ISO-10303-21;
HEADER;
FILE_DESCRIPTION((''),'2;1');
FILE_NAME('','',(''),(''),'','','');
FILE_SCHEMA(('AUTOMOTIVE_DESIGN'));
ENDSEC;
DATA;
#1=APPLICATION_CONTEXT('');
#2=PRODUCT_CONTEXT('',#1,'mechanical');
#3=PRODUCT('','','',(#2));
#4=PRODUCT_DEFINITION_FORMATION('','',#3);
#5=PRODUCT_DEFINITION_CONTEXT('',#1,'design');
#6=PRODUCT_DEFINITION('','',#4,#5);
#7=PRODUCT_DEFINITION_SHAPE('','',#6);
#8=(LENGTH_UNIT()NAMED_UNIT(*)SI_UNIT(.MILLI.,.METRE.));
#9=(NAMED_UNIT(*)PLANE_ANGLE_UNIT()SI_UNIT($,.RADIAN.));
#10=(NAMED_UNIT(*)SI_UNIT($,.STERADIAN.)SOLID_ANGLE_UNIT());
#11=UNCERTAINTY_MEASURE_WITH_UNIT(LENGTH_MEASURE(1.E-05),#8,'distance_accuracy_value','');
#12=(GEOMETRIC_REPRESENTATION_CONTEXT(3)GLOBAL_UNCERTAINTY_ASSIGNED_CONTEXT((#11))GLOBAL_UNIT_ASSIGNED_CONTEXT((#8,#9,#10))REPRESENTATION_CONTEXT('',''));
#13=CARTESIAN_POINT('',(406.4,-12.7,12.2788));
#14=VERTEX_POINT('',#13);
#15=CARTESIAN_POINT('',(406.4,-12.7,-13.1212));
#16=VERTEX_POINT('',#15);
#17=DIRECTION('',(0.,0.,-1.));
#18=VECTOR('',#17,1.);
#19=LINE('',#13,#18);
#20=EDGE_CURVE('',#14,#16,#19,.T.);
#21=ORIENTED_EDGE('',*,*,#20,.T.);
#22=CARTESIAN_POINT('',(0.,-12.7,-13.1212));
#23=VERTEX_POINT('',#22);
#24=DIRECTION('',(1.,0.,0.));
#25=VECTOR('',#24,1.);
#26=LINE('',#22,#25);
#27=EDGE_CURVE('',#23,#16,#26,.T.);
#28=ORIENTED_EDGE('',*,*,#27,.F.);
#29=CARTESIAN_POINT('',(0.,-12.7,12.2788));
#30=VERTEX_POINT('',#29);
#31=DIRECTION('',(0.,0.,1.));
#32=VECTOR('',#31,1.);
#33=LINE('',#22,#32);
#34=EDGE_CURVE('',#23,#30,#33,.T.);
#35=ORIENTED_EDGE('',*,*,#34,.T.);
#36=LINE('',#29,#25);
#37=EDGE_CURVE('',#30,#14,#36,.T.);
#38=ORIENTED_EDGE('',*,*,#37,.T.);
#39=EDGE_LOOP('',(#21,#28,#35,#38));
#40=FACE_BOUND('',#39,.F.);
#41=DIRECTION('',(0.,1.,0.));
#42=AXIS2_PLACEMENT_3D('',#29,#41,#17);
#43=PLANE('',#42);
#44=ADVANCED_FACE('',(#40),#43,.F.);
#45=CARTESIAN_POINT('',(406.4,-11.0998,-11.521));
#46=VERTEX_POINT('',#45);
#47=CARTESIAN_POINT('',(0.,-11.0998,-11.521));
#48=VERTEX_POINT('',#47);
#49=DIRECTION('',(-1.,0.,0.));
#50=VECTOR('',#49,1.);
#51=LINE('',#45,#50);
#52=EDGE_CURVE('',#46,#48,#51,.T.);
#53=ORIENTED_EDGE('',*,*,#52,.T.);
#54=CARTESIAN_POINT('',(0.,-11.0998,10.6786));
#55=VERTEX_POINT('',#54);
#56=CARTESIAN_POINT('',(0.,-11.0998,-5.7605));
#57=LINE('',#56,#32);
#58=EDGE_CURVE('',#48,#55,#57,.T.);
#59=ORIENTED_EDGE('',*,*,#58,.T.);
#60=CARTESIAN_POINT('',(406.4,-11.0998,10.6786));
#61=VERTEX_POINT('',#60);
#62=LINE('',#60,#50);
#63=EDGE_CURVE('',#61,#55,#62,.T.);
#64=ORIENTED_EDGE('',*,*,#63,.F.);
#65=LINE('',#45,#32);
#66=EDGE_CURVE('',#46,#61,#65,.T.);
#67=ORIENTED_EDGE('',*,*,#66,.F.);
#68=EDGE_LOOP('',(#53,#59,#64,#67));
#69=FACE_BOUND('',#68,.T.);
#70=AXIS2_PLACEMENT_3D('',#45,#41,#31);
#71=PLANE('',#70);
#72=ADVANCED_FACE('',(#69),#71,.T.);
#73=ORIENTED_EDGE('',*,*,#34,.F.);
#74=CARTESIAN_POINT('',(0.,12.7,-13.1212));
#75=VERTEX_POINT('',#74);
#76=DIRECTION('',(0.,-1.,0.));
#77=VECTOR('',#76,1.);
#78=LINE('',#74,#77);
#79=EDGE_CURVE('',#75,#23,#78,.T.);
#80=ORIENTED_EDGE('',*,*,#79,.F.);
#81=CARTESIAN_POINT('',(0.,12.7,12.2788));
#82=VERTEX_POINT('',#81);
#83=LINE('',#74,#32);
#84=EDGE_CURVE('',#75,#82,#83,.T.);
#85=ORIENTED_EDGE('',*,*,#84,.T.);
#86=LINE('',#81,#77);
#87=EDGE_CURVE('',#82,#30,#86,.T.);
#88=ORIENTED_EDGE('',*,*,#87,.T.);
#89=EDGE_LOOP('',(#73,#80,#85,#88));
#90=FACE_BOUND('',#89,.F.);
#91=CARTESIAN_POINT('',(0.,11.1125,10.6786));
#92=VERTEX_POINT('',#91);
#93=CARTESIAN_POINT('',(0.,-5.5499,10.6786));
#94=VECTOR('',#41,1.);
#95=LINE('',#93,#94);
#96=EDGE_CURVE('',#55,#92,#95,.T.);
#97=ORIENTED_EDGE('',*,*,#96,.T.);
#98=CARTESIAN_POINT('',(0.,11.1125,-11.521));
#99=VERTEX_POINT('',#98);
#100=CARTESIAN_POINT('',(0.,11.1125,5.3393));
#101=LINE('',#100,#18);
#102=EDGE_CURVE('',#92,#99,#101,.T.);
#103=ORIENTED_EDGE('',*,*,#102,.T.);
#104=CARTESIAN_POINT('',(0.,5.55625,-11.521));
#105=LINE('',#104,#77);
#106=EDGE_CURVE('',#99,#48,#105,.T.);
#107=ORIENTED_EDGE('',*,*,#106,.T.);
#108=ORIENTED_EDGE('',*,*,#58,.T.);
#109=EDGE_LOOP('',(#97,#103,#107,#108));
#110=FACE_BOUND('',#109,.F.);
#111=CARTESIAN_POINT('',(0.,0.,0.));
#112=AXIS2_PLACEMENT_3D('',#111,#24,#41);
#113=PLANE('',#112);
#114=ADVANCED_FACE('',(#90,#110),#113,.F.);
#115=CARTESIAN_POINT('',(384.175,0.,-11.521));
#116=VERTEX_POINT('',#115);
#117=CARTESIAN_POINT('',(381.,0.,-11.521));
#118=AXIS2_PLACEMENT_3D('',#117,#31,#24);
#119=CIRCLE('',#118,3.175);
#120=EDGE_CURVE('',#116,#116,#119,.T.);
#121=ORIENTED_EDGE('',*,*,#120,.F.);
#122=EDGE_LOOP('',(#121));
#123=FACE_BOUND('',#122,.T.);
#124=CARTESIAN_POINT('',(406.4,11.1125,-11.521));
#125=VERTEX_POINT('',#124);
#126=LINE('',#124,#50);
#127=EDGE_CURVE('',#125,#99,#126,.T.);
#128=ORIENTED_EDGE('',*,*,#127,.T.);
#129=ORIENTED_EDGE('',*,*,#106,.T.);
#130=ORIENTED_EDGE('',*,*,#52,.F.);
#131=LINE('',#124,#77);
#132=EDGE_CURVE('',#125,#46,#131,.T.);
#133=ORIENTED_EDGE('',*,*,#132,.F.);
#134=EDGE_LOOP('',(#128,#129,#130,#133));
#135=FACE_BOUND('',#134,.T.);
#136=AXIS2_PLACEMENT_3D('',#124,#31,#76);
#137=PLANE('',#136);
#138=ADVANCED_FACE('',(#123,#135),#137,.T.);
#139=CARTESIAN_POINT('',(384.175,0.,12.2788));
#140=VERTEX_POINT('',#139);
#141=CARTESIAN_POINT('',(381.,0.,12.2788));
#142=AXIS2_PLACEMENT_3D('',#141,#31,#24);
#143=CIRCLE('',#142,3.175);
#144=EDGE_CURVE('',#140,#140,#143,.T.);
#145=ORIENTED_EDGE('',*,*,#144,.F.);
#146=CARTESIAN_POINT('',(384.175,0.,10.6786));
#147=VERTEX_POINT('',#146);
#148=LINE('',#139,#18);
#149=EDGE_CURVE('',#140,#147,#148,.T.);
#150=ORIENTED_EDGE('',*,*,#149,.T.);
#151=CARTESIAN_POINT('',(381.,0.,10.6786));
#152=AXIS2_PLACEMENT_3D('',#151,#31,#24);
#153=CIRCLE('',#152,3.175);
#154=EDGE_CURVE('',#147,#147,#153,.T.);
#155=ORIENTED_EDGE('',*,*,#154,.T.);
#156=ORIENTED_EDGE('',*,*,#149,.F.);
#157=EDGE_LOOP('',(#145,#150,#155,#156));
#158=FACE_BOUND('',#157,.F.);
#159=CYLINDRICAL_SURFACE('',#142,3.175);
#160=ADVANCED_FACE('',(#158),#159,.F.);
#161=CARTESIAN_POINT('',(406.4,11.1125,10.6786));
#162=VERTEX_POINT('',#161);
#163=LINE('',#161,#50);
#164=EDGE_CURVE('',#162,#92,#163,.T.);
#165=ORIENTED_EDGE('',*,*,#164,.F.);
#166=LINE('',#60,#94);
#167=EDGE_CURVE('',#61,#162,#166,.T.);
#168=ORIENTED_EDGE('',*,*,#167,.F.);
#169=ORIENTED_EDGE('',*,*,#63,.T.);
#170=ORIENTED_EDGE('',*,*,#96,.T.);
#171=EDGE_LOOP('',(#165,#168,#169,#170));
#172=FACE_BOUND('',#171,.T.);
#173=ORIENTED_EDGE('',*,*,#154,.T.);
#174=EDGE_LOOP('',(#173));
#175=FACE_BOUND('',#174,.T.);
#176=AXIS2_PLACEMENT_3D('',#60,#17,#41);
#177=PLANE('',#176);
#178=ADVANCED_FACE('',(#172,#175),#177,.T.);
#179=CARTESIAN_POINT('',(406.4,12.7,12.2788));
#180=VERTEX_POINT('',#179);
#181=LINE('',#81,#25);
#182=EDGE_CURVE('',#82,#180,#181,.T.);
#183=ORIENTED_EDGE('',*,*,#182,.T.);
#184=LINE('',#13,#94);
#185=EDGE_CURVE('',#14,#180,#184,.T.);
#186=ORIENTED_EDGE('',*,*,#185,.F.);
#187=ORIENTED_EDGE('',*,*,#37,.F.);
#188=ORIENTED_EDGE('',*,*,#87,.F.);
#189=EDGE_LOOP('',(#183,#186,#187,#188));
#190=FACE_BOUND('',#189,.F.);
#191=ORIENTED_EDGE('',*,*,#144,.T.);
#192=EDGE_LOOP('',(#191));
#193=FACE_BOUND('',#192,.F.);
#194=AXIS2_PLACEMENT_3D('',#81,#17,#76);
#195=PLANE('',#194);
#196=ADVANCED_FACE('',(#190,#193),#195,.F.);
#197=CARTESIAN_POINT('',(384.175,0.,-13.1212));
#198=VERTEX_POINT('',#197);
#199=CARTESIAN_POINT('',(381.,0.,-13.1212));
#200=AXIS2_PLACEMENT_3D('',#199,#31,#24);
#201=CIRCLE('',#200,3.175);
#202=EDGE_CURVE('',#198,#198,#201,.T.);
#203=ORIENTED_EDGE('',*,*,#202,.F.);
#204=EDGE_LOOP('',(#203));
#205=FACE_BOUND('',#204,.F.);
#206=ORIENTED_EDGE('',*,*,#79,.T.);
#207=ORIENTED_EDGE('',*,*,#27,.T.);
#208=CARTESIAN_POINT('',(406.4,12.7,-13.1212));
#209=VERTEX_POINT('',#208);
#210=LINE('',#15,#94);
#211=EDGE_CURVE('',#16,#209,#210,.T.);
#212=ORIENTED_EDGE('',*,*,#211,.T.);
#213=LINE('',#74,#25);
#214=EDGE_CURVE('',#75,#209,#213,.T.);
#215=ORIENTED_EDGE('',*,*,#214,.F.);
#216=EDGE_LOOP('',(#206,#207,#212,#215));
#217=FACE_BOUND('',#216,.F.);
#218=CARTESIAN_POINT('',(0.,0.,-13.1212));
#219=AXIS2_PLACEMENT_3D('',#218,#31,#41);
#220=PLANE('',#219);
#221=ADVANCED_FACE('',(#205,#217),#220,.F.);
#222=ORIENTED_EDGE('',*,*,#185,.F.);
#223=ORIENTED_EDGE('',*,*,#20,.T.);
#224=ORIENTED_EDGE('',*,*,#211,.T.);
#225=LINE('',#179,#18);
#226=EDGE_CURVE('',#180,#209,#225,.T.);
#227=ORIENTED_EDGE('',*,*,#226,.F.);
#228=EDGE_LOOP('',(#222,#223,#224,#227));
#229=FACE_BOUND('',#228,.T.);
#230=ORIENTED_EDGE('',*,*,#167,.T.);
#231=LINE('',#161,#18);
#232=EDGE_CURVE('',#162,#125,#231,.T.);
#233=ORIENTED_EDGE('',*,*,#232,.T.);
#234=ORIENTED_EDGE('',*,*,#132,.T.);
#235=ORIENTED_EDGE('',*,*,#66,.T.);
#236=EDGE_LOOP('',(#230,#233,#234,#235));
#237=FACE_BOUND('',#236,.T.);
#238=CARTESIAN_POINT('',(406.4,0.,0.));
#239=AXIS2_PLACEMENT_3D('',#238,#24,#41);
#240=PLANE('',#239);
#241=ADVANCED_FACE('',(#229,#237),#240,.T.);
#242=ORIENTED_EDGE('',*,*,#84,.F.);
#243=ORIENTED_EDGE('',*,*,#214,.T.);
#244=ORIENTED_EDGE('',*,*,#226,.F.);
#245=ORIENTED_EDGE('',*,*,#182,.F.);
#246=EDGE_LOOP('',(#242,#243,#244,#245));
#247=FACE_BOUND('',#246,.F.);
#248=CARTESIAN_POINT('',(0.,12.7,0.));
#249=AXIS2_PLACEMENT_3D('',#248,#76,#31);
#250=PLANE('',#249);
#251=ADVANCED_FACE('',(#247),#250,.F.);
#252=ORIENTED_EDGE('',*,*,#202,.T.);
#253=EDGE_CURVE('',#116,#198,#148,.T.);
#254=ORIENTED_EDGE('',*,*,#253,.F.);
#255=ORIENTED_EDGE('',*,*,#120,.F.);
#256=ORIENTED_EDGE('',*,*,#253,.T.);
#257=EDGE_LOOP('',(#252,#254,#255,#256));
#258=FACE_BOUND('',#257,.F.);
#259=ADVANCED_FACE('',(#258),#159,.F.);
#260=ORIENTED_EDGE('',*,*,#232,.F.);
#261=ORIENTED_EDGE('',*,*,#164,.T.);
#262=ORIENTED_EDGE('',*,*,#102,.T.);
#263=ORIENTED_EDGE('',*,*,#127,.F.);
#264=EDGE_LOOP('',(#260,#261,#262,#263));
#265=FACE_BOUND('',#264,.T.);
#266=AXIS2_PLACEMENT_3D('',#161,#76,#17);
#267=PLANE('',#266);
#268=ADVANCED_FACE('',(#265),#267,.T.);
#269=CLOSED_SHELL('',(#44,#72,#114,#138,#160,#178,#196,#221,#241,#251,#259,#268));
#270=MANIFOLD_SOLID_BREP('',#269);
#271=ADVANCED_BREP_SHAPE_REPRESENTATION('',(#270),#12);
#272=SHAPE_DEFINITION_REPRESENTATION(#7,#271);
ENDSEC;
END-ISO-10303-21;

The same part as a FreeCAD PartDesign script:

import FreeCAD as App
import Part
import Sketcher
Q = App.Units.Quantity

doc = App.newDocument("Part")
body = doc.addObject("PartDesign::Body", "Body")

# Sketch on YZ plane
sketch1 = body.newObject("Sketcher::SketchObject", "Sketch")
sketch1.AttachmentSupport = (doc.getObject("YZ_Plane"), [""])
sketch1.MapMode = "FlatFace"
sketch1.addGeometry([
    Part.LineSegment(App.Vector(13, 12, 0), App.Vector(-13, 12, 0)),
    Part.LineSegment(App.Vector(-13, 12, 0), App.Vector(-13, -13, 0)),
    Part.LineSegment(App.Vector(-13, -13, 0), App.Vector(13, -13, 0)),
    Part.LineSegment(App.Vector(13, -13, 0), App.Vector(13, 12, 0)),
], False)
sketch1.addConstraint([
    Sketcher.Constraint("Coincident", 0, 2, 1, 1),
    Sketcher.Constraint("Coincident", 1, 2, 2, 1),
    Sketcher.Constraint("Coincident", 2, 2, 3, 1),
    Sketcher.Constraint("Coincident", 3, 2, 0, 1),
    Sketcher.Constraint("Horizontal", 0),
    Sketcher.Constraint("Vertical", 1),
    Sketcher.Constraint("Horizontal", 2),
    Sketcher.Constraint("Vertical", 3),
    Sketcher.Constraint("Equal", 2, 1),
    Sketcher.Constraint("DistanceX", 0, 2, 0, 1, Q("1 in")),
    Sketcher.Constraint("DistanceX", 0, 2, -1, 1, Q("0.5 in")),
    Sketcher.Constraint("DistanceY", -1, 1, 0, 2, Q("12.2788 mm")),
])
pad1 = body.newObject("PartDesign::Pad", "Pad")
pad1.Profile = sketch1
pad1.Length = Q("16 in")

# Sketch on YZ plane
sketch2 = body.newObject("Sketcher::SketchObject", "Sketch001")
sketch2.AttachmentSupport = (doc.getObject("YZ_Plane"), [""])
sketch2.MapMode = "FlatFace"
sketch2.AttachmentOffset = App.Placement(App.Vector(0, 0, 16 * 25.4), App.Rotation())
sketch2.addGeometry([
    Part.LineSegment(App.Vector(11, -12, 0), App.Vector(11, 11, 0)),
    Part.LineSegment(App.Vector(11, 11, 0), App.Vector(-11, 11, 0)),
    Part.LineSegment(App.Vector(-11, 11, 0), App.Vector(-11, -12, 0)),
    Part.LineSegment(App.Vector(-11, -12, 0), App.Vector(11, -12, 0)),
], False)
sketch2.addConstraint([
    Sketcher.Constraint("Coincident", 0, 2, 1, 1),
    Sketcher.Constraint("Coincident", 1, 2, 2, 1),
    Sketcher.Constraint("Coincident", 2, 2, 3, 1),
    Sketcher.Constraint("Coincident", 3, 2, 0, 1),
    Sketcher.Constraint("Vertical", 0),
    Sketcher.Constraint("Horizontal", 1),
    Sketcher.Constraint("Vertical", 2),
    Sketcher.Constraint("Horizontal", 3),
    Sketcher.Constraint("DistanceY", 0, 1, 0, 2, Q("0.874 in")),
    Sketcher.Constraint("DistanceX", 1, 2, 1, 1, Q("0.8745 in")),
    Sketcher.Constraint("DistanceX", -1, 1, 0, 2, Q("0.4375 in")),
    Sketcher.Constraint("DistanceY", -1, 1, 0, 2, Q("10.6786 mm")),
])
pocket1 = body.newObject("PartDesign::Pocket", "Pocket")
pocket1.Profile = sketch2
pocket1.Type = "ThroughAll"

# Sketch on XY plane
sketch3 = body.newObject("Sketcher::SketchObject", "Sketch002")
sketch3.AttachmentSupport = (doc.getObject("XY_Plane"), [""])
sketch3.MapMode = "FlatFace"
sketch3.AttachmentOffset = App.Placement(App.Vector(0, 0, 12.2788), App.Rotation())
sketch3.addGeometry(Part.Circle(App.Vector(381, 0, 0), App.Vector(0, 0, 1), 3.2), False)
sketch3.addConstraint([
    Sketcher.Constraint("PointOnObject", 0, 3, -1),
    Sketcher.Constraint("Diameter", 0, Q("0.25 in")),
    Sketcher.Constraint("DistanceX", -1, 1, 0, 3, Q("15 in")),
])
pocket2 = body.newObject("PartDesign::Pocket", "Pocket001")
pocket2.Profile = sketch3
pocket2.Type = "ThroughAll"

doc.recompute()
